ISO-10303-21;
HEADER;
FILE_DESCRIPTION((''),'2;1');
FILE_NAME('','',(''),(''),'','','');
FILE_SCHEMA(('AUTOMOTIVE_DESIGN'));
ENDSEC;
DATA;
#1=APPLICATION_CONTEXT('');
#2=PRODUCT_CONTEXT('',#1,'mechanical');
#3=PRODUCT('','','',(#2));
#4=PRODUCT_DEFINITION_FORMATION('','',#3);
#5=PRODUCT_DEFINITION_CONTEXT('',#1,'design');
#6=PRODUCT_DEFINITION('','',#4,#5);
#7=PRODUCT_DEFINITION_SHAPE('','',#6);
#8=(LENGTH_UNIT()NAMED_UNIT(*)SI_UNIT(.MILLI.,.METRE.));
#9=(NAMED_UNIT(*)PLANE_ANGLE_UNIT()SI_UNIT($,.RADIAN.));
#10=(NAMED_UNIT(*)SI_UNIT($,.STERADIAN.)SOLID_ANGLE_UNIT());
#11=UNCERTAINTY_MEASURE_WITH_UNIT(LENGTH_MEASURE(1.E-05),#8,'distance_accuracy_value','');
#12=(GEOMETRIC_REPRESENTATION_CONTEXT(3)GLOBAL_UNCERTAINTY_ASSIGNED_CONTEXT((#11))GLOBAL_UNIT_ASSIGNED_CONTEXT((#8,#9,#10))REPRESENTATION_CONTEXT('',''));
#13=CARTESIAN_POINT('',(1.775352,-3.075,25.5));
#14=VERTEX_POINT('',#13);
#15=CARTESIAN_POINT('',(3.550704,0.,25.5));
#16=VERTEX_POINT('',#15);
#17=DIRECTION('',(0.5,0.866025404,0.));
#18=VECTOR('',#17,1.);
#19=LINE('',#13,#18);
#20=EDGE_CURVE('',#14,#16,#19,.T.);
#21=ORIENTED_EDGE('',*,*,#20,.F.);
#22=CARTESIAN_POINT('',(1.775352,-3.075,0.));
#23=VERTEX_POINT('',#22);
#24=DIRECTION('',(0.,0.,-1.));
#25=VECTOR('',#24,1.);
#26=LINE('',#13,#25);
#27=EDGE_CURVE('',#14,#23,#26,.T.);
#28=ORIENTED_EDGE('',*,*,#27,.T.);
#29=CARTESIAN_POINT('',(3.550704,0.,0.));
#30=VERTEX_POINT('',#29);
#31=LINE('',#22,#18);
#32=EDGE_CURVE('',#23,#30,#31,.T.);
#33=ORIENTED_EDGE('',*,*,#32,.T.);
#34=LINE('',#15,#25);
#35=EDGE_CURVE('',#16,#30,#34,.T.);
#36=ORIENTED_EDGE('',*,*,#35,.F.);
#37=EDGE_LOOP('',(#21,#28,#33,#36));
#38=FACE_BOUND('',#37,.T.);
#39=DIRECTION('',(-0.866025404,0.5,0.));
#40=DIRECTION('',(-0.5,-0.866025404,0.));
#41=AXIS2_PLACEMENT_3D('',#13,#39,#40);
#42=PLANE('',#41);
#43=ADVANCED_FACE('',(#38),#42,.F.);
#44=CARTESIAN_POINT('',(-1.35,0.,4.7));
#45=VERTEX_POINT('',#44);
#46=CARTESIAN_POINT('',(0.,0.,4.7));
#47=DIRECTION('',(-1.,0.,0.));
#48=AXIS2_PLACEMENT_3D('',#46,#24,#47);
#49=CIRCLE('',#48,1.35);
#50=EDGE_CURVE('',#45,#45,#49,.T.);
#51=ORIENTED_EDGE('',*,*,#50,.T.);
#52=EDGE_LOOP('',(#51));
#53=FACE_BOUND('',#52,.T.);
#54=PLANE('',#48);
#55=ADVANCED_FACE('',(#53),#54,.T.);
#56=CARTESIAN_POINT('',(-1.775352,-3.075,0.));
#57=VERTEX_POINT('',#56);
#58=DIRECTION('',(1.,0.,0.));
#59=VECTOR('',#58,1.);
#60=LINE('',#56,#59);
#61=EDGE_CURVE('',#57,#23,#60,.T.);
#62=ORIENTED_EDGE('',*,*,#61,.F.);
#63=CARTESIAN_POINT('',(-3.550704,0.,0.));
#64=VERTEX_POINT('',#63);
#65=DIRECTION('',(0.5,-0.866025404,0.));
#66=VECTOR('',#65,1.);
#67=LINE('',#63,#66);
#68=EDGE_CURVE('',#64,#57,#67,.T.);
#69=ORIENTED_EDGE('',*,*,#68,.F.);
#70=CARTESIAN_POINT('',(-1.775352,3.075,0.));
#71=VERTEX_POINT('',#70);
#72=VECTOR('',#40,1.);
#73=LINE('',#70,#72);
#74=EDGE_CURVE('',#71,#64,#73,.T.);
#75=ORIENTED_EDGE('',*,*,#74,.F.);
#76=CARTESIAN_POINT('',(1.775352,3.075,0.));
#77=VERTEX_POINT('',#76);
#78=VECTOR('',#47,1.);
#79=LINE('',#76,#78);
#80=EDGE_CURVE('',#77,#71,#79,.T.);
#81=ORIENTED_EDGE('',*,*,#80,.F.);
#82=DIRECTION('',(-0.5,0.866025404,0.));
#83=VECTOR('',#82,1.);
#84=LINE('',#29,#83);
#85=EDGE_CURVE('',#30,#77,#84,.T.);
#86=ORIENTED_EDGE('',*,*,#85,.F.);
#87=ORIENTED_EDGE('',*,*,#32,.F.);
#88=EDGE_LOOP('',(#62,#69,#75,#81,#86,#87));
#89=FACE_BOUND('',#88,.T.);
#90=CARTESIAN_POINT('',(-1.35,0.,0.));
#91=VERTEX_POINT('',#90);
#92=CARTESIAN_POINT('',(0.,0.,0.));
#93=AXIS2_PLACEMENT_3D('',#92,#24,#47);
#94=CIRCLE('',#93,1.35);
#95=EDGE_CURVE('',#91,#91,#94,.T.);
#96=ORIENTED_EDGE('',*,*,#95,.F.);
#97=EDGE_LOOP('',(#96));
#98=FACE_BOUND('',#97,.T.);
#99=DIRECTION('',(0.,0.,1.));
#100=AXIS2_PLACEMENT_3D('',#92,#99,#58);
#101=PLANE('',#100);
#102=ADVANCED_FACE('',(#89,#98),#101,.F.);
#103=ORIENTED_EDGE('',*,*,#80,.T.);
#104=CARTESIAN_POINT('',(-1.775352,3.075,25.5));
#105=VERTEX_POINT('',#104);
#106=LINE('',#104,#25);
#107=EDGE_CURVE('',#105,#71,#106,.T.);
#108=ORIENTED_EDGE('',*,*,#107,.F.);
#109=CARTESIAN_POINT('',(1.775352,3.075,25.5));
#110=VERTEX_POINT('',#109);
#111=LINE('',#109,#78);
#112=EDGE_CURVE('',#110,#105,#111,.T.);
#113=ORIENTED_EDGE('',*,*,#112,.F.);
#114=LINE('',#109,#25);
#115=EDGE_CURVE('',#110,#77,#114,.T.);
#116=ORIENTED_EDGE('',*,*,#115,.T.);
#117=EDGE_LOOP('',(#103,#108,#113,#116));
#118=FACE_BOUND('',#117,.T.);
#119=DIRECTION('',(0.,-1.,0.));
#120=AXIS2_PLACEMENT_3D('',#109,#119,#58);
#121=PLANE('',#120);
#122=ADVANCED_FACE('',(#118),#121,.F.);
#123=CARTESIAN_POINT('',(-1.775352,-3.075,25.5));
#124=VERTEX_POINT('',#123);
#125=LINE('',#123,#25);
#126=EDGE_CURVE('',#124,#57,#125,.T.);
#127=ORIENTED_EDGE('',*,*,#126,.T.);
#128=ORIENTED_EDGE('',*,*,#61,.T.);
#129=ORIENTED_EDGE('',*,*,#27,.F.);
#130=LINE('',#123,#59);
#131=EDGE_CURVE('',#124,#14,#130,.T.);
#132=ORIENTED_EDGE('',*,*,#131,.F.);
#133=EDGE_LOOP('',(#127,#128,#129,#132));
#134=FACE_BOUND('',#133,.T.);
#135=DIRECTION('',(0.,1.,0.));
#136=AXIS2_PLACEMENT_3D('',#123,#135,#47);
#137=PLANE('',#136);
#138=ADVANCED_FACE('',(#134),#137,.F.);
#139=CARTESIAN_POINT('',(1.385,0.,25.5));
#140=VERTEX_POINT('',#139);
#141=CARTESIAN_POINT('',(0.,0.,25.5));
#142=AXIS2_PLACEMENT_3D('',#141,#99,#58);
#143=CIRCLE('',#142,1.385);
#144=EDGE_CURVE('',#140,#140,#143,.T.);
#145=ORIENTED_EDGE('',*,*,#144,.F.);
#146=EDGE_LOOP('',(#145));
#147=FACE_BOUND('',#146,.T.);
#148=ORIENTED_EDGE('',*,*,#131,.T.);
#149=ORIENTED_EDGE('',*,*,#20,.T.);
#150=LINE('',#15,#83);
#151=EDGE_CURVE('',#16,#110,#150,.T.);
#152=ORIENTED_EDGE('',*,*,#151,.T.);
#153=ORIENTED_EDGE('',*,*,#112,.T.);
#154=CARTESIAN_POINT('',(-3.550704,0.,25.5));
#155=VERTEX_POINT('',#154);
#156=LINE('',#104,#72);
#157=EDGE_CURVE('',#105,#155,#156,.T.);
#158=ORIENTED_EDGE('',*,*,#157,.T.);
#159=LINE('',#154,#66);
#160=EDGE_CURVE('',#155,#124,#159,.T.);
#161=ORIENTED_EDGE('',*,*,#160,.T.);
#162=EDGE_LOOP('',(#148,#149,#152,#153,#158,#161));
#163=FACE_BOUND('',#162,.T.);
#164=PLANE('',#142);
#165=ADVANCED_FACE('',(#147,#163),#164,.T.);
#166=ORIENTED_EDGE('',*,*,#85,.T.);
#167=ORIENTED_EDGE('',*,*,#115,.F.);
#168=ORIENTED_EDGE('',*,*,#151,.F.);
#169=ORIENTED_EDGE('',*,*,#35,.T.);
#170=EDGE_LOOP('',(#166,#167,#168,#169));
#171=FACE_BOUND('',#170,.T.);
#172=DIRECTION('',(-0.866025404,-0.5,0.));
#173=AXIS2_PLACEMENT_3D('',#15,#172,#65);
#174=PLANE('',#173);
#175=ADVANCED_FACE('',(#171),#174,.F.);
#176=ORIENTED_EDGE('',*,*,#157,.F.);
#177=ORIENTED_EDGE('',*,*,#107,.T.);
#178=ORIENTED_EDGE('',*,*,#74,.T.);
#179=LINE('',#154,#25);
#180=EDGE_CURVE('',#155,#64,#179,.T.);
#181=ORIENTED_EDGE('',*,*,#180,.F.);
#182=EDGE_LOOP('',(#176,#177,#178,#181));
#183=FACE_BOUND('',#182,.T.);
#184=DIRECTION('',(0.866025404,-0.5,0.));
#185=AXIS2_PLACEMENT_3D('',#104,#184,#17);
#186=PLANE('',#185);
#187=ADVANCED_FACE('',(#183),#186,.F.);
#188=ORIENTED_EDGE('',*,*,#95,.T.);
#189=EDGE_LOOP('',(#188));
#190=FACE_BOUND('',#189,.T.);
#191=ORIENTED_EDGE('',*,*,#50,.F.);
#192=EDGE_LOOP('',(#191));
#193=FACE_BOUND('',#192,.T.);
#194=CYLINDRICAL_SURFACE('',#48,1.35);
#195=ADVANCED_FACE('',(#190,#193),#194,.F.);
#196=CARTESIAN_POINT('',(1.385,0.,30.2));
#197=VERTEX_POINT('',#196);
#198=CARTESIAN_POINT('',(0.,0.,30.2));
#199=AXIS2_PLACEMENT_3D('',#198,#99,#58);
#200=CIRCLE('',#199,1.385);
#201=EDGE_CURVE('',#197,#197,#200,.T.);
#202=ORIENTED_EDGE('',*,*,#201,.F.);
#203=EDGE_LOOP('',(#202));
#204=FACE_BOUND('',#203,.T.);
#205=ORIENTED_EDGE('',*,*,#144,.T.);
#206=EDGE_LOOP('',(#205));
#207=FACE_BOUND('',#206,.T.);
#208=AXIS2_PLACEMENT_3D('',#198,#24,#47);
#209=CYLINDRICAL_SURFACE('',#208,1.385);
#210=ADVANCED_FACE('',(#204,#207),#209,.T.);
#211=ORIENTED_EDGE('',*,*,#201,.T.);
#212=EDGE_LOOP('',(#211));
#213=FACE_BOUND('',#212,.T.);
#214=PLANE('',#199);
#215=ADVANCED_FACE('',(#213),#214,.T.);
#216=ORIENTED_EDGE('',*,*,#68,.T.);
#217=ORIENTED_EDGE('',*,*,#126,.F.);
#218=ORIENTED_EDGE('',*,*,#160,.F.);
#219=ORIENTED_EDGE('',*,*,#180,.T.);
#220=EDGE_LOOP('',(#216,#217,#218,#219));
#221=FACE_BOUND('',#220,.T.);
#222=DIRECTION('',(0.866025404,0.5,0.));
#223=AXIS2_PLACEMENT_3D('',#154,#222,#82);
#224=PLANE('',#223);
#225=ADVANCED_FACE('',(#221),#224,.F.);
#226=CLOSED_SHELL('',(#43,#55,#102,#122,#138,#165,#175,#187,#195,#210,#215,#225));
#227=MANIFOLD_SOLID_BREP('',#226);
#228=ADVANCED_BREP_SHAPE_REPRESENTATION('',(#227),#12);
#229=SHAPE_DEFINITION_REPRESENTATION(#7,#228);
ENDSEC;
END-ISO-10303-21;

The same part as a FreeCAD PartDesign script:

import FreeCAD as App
import Part
import Sketcher

V = App.Vector
Q = App.Units.Quantity


def add_polygon(sketch, points):
    """Adds a closed chain of lines whose ends are joined by coincident constraints."""
    first, n = sketch.GeometryCount, len(points)
    for a, b in zip(points, points[1:] + points[:1]):
        sketch.addGeometry(Part.LineSegment(App.Vector(*a, 0), App.Vector(*b, 0)), False)
    for i in range(n):
        sketch.addConstraint(Sketcher.Constraint("Coincident", first + i, 2, first + (i + 1) % n, 1))

doc = App.newDocument("Part")
body = doc.addObject("PartDesign::Body", "Body")

sketch1 = body.newObject("Sketcher::SketchObject", "Sketch")
sketch1.AttachmentSupport = (doc.getObject("XY_Plane"), [""])
sketch1.MapMode = "FlatFace"
add_polygon(sketch1, [(3.550704, 0), (1.775352, 3.075), (-1.775352, 3.075), (-3.550704, 0), (-1.775352, -3.075), (1.775352, -3.075)])
sketch1.addConstraint(Sketcher.Constraint("Horizontal", 1))
sketch1.addConstraint(Sketcher.Constraint("Horizontal", 4))
sketch1.addConstraint(Sketcher.Constraint("Symmetric", 0, 2, 3, 2, -1, 1))
sketch1.addConstraint(Sketcher.Constraint("Symmetric", 2, 2, 5, 2, -1, 1))
sketch1.addConstraint(Sketcher.Constraint("PointOnObject", 2, 2, -1))
sketch1.addConstraint(Sketcher.Constraint("Parallel", 2, 5))
sketch1.addConstraint(Sketcher.Constraint("Vertical", 1, 2, 3, 2))
sketch1.addConstraint(Sketcher.Constraint("Angle", 0, Q("120 deg")))
sketch1.addConstraint(Sketcher.Constraint("DistanceY", 3, 2, 1, 2, 6.15))
sketch1.addConstraint(Sketcher.Constraint("DistanceX", 1, 2, 1, 1, 3.550704))
pad1 = body.newObject("PartDesign::Pad", "Pad")
pad1.Profile = sketch1
pad1.Length = 25.5

sketch2 = body.newObject("Sketcher::SketchObject", "Sketch001")
sketch2.AttachmentSupport = (doc.getObject("XY_Plane"), [""])
sketch2.MapMode = "FlatFace"
sketch2.AttachmentOffset = App.Placement(V(0, 0, 25.5), App.Rotation())
sketch2.addGeometry(Part.Circle(V(0, 0, 0), V(0, 0, 1), 1.385), False)
sketch2.addConstraint(Sketcher.Constraint("Coincident", 0, 3, -1, 1))
sketch2.addConstraint(Sketcher.Constraint("Diameter", 0, 2.77))
pad2 = body.newObject("PartDesign::Pad", "Pad001")
pad2.Profile = sketch2
pad2.Length = 4.7

sketch3 = body.newObject("Sketcher::SketchObject", "Sketch002")
sketch3.AttachmentSupport = (doc.getObject("XY_Plane"), [""])
sketch3.MapMode = "FlatFace"
sketch3.addGeometry(Part.Circle(V(0, 0, 0), V(0, 0, 1), 1.35), False)
sketch3.addConstraint(Sketcher.Constraint("Coincident", 0, 3, -1, 1))
sketch3.addConstraint(Sketcher.Constraint("Diameter", 0, 2.7))
pocket1 = body.newObject("PartDesign::Pocket", "Pocket")
pocket1.Profile = sketch3
pocket1.Length = 4.7
pocket1.Reversed = True

doc.recompute()
